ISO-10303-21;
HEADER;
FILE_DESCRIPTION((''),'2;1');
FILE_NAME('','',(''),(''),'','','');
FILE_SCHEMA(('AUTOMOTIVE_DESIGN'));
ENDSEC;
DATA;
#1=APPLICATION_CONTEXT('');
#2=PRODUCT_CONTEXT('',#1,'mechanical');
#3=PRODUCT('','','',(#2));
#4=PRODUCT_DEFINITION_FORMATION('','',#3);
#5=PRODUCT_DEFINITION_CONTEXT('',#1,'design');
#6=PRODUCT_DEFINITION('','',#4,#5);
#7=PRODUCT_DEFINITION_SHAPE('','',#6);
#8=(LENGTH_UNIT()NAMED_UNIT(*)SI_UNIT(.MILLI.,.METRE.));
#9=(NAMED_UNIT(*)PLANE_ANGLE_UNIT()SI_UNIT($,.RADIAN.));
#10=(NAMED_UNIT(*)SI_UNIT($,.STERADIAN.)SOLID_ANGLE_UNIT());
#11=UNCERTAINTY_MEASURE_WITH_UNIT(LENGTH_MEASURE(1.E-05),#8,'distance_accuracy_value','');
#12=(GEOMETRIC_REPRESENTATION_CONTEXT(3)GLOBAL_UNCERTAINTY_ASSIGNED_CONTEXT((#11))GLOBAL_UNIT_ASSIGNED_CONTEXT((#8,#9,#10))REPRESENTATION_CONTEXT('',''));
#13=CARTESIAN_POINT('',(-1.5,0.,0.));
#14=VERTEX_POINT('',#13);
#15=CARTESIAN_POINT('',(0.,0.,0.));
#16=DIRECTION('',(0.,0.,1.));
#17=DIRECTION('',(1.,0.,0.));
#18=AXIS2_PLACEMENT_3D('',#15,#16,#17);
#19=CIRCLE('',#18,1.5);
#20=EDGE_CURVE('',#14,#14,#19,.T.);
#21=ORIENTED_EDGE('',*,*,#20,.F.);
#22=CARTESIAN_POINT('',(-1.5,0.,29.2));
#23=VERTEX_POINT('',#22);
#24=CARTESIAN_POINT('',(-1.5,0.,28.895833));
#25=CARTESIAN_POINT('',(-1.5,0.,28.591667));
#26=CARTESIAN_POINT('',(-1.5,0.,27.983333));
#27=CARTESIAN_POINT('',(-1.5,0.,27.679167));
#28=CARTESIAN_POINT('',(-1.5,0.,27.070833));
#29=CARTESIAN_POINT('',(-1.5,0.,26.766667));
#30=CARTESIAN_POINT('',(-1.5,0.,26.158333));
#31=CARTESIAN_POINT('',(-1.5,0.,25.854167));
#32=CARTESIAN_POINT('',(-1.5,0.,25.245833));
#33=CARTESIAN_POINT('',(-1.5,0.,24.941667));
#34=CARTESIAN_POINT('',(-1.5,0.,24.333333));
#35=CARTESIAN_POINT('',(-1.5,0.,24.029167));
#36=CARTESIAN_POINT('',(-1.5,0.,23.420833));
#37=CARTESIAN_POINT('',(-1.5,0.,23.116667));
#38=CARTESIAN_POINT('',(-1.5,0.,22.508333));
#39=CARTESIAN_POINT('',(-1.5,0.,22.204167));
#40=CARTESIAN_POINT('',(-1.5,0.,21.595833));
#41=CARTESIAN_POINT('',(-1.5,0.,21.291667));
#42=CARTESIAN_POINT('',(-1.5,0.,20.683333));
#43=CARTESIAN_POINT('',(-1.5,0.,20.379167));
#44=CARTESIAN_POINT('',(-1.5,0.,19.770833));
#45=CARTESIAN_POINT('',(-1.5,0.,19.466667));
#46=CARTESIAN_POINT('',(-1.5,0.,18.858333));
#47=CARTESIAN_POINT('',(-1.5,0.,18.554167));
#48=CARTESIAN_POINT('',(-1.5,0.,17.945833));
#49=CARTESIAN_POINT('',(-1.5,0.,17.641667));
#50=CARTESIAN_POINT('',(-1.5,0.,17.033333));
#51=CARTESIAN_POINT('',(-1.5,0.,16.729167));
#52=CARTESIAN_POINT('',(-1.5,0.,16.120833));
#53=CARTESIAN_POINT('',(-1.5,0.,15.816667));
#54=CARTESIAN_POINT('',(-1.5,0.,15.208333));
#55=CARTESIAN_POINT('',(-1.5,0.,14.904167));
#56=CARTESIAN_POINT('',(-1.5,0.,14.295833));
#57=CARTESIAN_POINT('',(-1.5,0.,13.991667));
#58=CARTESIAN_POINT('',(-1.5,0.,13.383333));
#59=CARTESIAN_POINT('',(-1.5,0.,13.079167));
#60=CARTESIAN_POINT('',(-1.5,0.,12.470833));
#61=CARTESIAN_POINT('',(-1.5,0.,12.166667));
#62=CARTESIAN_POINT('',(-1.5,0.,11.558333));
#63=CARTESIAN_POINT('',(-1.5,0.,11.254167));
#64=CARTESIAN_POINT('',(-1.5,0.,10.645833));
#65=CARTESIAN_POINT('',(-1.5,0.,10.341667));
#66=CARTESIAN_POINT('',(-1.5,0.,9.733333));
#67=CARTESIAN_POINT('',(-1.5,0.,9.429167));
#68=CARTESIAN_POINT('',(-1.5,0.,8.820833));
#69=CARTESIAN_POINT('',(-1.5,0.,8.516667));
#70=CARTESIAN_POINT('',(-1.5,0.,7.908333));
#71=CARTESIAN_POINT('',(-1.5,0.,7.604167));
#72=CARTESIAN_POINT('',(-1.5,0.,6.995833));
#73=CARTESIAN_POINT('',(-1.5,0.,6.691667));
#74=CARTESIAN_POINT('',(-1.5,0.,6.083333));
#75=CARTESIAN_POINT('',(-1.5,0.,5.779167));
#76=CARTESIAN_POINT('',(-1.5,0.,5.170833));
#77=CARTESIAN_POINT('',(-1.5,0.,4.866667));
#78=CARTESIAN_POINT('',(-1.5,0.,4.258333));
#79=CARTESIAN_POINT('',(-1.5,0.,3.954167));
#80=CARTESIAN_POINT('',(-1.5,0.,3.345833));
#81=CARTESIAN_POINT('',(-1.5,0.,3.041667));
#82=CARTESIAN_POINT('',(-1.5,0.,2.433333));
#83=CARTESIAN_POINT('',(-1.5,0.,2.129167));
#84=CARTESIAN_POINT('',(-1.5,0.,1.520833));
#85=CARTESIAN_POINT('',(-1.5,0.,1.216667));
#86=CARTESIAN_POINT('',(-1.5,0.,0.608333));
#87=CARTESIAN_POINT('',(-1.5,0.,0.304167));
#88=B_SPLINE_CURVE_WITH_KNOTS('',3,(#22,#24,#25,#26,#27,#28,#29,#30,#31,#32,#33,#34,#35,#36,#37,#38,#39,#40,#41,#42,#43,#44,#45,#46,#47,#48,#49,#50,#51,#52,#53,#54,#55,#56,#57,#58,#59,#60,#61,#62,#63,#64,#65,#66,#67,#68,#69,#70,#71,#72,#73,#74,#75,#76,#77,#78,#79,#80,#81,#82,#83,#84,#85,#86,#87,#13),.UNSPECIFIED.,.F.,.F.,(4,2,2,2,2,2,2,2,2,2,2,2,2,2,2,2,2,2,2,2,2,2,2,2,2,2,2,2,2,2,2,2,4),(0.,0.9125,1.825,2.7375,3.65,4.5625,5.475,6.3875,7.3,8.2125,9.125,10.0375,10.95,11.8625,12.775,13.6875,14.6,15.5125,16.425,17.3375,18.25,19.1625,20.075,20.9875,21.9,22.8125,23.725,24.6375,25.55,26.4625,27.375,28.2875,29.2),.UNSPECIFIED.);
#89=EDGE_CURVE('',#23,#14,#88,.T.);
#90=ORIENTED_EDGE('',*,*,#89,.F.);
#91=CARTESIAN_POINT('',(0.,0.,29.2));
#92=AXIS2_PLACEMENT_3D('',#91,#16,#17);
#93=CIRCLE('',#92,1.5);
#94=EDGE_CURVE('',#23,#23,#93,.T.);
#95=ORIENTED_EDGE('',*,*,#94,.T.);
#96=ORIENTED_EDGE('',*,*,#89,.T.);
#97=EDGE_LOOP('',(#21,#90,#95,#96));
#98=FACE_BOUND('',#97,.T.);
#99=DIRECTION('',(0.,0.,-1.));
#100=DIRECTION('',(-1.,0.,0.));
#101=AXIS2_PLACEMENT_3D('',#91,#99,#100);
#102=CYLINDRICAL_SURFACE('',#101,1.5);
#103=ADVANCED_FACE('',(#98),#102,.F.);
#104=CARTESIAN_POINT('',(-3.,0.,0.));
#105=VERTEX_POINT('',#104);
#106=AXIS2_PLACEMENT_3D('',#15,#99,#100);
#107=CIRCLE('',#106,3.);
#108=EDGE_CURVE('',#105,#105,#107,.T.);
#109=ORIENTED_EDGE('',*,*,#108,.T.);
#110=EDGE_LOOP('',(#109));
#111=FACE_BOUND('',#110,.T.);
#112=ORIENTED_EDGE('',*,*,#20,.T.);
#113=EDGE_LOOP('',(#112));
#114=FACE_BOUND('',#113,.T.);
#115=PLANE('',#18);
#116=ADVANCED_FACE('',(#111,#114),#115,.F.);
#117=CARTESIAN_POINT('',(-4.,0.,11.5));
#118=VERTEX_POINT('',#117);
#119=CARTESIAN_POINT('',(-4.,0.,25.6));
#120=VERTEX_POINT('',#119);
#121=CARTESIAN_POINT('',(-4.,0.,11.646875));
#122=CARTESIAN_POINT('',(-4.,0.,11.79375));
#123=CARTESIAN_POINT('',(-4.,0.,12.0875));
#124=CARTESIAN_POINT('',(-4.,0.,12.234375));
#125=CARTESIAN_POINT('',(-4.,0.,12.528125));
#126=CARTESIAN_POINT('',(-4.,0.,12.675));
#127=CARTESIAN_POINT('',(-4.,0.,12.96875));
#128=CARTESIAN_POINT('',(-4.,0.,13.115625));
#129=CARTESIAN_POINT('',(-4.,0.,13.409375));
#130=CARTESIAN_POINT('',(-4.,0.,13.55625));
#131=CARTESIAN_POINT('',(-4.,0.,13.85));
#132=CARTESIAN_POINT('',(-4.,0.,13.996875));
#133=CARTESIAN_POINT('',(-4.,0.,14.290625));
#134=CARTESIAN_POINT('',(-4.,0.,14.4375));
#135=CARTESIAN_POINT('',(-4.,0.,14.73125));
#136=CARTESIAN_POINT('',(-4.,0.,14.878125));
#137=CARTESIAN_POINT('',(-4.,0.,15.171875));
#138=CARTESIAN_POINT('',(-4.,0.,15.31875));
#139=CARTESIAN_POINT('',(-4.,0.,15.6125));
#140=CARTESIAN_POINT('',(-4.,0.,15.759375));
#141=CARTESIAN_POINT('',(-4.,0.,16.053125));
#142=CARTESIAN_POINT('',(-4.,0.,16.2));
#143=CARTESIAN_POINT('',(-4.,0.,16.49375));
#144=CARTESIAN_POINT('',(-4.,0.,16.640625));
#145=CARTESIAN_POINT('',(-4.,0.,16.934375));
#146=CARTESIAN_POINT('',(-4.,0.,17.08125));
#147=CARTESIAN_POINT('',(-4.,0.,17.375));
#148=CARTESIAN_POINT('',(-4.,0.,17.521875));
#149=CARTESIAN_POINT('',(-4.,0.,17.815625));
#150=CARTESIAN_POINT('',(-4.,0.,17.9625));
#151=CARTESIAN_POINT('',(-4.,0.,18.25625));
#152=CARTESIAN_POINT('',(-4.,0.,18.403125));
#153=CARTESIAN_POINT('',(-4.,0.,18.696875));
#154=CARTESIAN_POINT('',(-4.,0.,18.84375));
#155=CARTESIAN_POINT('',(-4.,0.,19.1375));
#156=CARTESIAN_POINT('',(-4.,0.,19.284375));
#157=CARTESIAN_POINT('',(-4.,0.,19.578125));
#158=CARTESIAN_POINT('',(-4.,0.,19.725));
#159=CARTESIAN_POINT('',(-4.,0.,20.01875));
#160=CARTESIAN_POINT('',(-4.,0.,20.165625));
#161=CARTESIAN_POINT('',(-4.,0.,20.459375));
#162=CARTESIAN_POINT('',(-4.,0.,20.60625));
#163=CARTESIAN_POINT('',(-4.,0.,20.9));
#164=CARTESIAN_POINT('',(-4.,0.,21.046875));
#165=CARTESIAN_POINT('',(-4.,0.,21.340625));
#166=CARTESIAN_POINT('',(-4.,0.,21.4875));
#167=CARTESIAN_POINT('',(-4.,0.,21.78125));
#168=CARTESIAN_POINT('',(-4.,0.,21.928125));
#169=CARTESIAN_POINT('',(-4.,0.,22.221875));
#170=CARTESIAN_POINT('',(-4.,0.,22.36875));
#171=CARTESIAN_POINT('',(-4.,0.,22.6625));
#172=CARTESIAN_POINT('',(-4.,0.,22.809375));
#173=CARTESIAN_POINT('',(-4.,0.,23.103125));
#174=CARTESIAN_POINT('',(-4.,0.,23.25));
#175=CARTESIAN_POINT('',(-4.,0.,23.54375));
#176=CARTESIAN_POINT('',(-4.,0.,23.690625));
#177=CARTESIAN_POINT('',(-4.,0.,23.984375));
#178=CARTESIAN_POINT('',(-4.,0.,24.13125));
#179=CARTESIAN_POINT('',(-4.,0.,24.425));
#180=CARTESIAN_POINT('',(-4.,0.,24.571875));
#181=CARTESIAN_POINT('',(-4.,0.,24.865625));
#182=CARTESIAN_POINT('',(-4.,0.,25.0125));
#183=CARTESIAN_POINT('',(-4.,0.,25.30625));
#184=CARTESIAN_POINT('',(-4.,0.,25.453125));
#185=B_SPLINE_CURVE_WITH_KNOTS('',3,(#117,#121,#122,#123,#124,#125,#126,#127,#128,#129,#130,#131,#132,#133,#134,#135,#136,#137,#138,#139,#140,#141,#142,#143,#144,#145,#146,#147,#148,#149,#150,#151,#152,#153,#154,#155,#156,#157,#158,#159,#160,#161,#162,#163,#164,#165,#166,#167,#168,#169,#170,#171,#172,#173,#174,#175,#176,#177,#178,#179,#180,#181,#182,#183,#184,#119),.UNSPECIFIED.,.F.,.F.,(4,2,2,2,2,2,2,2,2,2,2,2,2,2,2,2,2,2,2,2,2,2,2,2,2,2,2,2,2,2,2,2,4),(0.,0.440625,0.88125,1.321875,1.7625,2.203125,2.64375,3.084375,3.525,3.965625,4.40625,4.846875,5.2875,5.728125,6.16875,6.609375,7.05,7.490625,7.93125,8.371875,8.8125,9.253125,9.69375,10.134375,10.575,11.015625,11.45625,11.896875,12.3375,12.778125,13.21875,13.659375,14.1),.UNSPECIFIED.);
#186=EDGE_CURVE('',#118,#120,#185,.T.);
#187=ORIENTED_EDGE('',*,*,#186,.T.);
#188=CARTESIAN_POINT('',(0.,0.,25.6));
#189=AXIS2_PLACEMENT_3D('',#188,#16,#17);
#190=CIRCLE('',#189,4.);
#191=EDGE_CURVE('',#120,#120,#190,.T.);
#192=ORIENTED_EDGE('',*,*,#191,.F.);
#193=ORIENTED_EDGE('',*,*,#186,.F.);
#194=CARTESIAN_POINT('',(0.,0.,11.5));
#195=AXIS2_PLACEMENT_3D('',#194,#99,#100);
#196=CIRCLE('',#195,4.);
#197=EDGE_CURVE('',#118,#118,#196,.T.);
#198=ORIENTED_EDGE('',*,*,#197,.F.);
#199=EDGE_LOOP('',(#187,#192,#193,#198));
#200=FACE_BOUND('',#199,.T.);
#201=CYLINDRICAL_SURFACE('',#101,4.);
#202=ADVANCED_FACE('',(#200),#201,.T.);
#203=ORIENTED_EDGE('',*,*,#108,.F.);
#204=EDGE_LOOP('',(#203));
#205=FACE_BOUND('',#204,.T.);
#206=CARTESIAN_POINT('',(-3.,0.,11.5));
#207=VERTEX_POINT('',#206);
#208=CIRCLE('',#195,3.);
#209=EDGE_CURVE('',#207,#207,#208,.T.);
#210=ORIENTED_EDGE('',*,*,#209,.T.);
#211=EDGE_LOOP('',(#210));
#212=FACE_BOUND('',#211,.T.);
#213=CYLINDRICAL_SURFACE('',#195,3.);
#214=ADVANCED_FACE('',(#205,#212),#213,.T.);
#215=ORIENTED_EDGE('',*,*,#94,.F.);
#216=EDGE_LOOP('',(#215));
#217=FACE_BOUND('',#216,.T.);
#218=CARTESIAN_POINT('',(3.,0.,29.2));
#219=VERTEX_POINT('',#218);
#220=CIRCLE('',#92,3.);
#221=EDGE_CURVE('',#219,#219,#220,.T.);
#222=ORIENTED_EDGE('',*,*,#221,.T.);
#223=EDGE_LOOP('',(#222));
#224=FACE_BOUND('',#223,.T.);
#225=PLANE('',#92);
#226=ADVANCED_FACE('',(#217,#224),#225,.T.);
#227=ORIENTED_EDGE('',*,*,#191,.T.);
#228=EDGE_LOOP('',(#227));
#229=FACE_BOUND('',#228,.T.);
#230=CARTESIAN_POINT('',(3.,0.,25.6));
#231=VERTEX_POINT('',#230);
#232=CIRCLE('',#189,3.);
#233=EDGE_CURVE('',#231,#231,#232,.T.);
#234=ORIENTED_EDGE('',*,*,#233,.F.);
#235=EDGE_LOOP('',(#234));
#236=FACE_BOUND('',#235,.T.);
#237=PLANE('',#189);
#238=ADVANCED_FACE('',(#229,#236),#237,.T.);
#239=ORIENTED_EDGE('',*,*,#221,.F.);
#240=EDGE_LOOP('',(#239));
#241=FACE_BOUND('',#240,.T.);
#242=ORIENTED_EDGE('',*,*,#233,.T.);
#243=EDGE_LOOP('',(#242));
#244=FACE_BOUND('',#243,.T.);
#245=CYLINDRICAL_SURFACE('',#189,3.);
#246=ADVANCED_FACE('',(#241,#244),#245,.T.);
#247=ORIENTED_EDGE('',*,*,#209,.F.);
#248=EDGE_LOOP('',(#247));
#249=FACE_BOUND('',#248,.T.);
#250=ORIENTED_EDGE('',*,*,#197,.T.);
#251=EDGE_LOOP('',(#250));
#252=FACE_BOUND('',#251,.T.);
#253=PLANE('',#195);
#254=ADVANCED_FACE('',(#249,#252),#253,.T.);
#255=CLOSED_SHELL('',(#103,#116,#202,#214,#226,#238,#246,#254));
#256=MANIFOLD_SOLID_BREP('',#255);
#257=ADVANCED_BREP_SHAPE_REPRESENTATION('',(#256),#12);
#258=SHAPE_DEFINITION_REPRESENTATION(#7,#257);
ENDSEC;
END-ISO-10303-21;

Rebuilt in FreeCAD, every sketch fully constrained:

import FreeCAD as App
import Part
import Sketcher

V = App.Vector

doc = App.newDocument("Part")
body = doc.addObject("PartDesign::Body", "Body")

sketch1 = body.newObject("Sketcher::SketchObject", "Sketch")
sketch1.AttachmentSupport = (doc.getObject("XY_Plane"), [""])
sketch1.MapMode = "FlatFace"
sketch1.addGeometry(Part.Circle(V(0, 0, 0), V(0, 0, 1), 4), False)
sketch1.addGeometry(Part.Circle(V(0, 0, 0), V(0, 0, 1), 1.5), False)
sketch1.addConstraint(Sketcher.Constraint("Coincident", 0, 3, -1, 1))
sketch1.addConstraint(Sketcher.Constraint("Coincident", 1, 3, -1, 1))
sketch1.addConstraint(Sketcher.Constraint("Diameter", 0, 8.0))
sketch1.addConstraint(Sketcher.Constraint("Diameter", 1, 3.0))
pad1 = body.newObject("PartDesign::Pad", "Pad")
pad1.Profile = sketch1
pad1.Length = 29.2

sketch2 = body.newObject("Sketcher::SketchObject", "Sketch001")
sketch2.AttachmentSupport = (doc.getObject("XY_Plane"), [""])
sketch2.MapMode = "FlatFace"
sketch2.addGeometry(Part.Circle(V(0, 0, 0), V(0, 0, 1), 4), False)
sketch2.addGeometry(Part.Circle(V(0, 0, 0), V(0, 0, 1), 3), False)
sketch2.addConstraint(Sketcher.Constraint("Coincident", 0, 3, -1, 1))
sketch2.addConstraint(Sketcher.Constraint("Coincident", 1, 3, -1, 1))
sketch2.addConstraint(Sketcher.Constraint("Diameter", 0, 8.0))
sketch2.addConstraint(Sketcher.Constraint("Diameter", 1, 6.0))
pocket1 = body.newObject("PartDesign::Pocket", "Pocket")
pocket1.Profile = sketch2
pocket1.Length = 11.5
pocket1.Reversed = True

sketch3 = body.newObject("Sketcher::SketchObject", "Sketch002")
sketch3.AttachmentSupport = (doc.getObject("XY_Plane"), [""])
sketch3.MapMode = "FlatFace"
sketch3.AttachmentOffset = App.Placement(V(0, 0, 25.6), App.Rotation())
sketch3.addGeometry(Part.Circle(V(0, 0, 0), V(0, 0, 1), 4), False)
sketch3.addGeometry(Part.Circle(V(0, 0, 0), V(0, 0, 1), 3), False)
sketch3.addConstraint(Sketcher.Constraint("Coincident", 0, 3, -1, 1))
sketch3.addConstraint(Sketcher.Constraint("Coincident", 1, 3, -1, 1))
sketch3.addConstraint(Sketcher.Constraint("Diameter", 0, 8.0))
sketch3.addConstraint(Sketcher.Constraint("Diameter", 1, 6.0))
pocket2 = body.newObject("PartDesign::Pocket", "Pocket001")
pocket2.Profile = sketch3
pocket2.Length = 3.6
pocket2.Reversed = True

doc.recompute()
